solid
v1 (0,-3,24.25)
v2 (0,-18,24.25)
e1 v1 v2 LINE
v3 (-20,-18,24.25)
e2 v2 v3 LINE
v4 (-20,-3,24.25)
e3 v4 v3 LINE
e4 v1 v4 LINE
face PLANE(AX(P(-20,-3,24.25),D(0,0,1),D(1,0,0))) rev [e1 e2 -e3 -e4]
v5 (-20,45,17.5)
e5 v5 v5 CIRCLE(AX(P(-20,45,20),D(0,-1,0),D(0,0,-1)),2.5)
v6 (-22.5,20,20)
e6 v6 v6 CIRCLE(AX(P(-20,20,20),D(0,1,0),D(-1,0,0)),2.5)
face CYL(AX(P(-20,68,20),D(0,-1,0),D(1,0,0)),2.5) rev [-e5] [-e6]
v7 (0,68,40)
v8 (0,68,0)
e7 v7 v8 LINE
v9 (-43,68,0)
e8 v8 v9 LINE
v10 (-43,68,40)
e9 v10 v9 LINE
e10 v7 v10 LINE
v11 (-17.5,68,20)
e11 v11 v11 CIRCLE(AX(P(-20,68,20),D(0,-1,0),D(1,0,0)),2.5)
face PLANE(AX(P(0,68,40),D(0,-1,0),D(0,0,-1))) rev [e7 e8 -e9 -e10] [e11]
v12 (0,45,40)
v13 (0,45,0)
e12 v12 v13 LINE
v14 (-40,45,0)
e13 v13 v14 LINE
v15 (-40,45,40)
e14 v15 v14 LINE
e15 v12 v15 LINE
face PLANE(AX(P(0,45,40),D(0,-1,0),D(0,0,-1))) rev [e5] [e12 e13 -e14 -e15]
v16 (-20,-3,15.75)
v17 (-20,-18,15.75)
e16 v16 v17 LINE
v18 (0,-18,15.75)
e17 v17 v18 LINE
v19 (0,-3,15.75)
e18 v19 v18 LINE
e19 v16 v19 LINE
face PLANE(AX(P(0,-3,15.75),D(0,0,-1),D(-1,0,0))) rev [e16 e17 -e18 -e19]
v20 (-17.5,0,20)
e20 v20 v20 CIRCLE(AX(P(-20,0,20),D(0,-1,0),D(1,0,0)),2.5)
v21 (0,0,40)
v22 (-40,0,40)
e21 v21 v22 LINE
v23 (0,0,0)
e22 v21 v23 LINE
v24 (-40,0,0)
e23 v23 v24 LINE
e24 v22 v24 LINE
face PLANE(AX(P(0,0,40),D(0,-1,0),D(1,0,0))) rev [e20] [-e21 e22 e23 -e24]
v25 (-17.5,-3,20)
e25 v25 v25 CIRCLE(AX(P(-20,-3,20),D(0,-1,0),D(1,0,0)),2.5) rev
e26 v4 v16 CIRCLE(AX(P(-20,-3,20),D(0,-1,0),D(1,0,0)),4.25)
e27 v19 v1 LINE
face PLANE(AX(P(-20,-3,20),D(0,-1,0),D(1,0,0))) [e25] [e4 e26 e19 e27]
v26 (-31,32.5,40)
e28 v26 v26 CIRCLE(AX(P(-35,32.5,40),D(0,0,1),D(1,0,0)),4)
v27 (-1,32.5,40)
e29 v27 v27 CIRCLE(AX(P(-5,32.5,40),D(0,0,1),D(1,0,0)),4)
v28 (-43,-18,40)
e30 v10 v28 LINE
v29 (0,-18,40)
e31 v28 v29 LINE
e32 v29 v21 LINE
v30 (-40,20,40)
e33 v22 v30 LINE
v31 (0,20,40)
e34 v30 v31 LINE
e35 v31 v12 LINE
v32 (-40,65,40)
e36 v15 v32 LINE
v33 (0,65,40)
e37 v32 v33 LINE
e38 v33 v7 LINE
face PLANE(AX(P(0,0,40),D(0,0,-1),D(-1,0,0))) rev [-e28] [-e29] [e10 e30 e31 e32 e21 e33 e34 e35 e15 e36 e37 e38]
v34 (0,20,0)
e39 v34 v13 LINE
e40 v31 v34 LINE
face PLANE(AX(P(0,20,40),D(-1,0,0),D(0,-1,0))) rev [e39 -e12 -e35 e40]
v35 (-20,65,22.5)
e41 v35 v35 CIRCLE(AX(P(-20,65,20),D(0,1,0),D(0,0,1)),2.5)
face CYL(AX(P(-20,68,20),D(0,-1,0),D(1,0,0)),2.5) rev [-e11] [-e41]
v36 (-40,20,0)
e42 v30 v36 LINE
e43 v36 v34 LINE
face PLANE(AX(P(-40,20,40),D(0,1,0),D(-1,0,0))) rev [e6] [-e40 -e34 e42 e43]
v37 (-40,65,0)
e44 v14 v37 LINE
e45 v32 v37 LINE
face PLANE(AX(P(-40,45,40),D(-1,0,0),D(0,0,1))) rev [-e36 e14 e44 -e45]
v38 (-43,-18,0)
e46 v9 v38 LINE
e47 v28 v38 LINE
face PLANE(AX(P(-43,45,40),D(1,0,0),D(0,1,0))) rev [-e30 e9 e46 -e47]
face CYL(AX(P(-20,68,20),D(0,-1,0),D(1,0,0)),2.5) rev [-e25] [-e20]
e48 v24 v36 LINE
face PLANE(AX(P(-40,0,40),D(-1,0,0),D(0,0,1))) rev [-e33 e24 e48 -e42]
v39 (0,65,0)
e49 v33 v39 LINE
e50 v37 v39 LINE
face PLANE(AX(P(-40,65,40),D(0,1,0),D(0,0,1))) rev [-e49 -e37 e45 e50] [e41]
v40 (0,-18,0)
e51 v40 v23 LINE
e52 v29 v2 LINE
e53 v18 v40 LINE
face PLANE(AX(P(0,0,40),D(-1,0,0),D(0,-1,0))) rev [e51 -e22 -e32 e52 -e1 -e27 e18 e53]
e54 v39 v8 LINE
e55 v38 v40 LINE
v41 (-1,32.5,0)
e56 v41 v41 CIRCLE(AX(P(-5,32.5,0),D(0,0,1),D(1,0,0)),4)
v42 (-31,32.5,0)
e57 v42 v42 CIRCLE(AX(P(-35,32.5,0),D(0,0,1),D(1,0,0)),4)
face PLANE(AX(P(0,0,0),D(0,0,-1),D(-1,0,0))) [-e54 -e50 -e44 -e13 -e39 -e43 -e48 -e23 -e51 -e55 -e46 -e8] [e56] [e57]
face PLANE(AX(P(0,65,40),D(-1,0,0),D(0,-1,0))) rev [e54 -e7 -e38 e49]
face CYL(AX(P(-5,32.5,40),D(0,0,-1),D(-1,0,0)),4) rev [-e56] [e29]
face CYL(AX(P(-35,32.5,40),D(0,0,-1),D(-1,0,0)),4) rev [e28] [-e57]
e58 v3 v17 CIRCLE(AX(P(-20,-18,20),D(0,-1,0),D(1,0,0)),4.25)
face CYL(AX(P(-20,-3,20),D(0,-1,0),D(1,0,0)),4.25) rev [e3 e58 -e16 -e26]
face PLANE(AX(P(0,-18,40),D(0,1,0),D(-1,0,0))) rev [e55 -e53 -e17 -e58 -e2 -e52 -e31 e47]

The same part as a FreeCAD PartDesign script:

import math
import FreeCAD as App
import Part
import Sketcher
from FreeCAD import Vector

doc = App.newDocument("Part")
body = doc.addObject("PartDesign::Body", "Body")

# Sketch on XY plane
sketch1 = body.newObject("Sketcher::SketchObject", "Sketch")
sketch1.AttachmentSupport = (doc.getObject("XY_Plane"), [""])
sketch1.MapMode = "FlatFace"
sketch1.addGeometry([
    Part.LineSegment(Vector(0, 0, 0), Vector(-40, 0, 0)),  # 0
    Part.LineSegment(Vector(-40, 0, 0), Vector(-40, 20, 0)),  # 1
    Part.LineSegment(Vector(-40, 20, 0), Vector(0, 20, 0)),  # 2
    Part.LineSegment(Vector(0, 20, 0), Vector(0, 45, 0)),  # 3
    Part.LineSegment(Vector(0, 45, 0), Vector(-40, 45, 0)),  # 4
    Part.LineSegment(Vector(-40, 45, 0), Vector(-40, 65, 0)),  # 5
    Part.LineSegment(Vector(-40, 65, 0), Vector(0, 65, 0)),  # 6
    Part.LineSegment(Vector(0, 65, 0), Vector(0, 68, 0)),  # 7
    Part.LineSegment(Vector(0, 68, 0), Vector(-43, 68, 0)),  # 8
    Part.LineSegment(Vector(-43, 68, 0), Vector(-43, -18, 0)),  # 9
    Part.LineSegment(Vector(-43, -18, 0), Vector(0, -18, 0)),  # 10
    Part.LineSegment(Vector(0, -18, 0), Vector(0, 0, 0)),  # 11
    Part.Circle(Vector(-35, 32.5, 0), Vector(0, 0, 1), 4),  # 12
    Part.Circle(Vector(-5, 32.5, 0), Vector(0, 0, 1), 4),  # 13
], False)
sketch1.addConstraint([
    Sketcher.Constraint("Coincident", 0, 2, 1, 1),
    Sketcher.Constraint("Coincident", 1, 2, 2, 1),
    Sketcher.Constraint("Coincident", 2, 2, 3, 1),
    Sketcher.Constraint("Coincident", 3, 2, 4, 1),
    Sketcher.Constraint("Coincident", 4, 2, 5, 1),
    Sketcher.Constraint("Coincident", 5, 2, 6, 1),
    Sketcher.Constraint("Coincident", 6, 2, 7, 1),
    Sketcher.Constraint("Coincident", 7, 2, 8, 1),
    Sketcher.Constraint("Coincident", 8, 2, 9, 1),
    Sketcher.Constraint("Coincident", 9, 2, 10, 1),
    Sketcher.Constraint("Coincident", 10, 2, 11, 1),
    Sketcher.Constraint("Coincident", 11, 2, 0, 1),
    Sketcher.Constraint("Horizontal", 0),
    Sketcher.Constraint("Vertical", 1),
    Sketcher.Constraint("Horizontal", 2),
    Sketcher.Constraint("Vertical", 3),
    Sketcher.Constraint("Horizontal", 4),
    Sketcher.Constraint("Vertical", 5),
    Sketcher.Constraint("Horizontal", 6),
    Sketcher.Constraint("Vertical", 7),
    Sketcher.Constraint("Horizontal", 8),
    Sketcher.Constraint("Vertical", 9),
    Sketcher.Constraint("Horizontal", 10),
    Sketcher.Constraint("Vertical", 11),
    Sketcher.Constraint("Coincident", 11, 2, -1, 1),
    Sketcher.Constraint("Equal", 12, 13),
    Sketcher.Constraint("PointOnObject", 2, 2, -2),
    Sketcher.Constraint("PointOnObject", 6, 2, -2),
    Sketcher.Constraint("Horizontal", 12, 3, 13, 3),
    Sketcher.Constraint("Vertical", 1, 2, 4, 2),
    Sketcher.Constraint("Equal", 1, 5),
    Sketcher.Constraint("Diameter", 12, 8.0),
    Sketcher.Constraint("DistanceX", 0, 2, 0, 1, 40.0),
    Sketcher.Constraint("DistanceX", 8, 2, 8, 1, 43.0),
    Sketcher.Constraint("DistanceY", 1, 1, 1, 2, 20.0),
    Sketcher.Constraint("DistanceY", 3, 1, 3, 2, 25.0),
    Sketcher.Constraint("DistanceY", 7, 1, 7, 2, 3.0),
    Sketcher.Constraint("DistanceY", 9, 2, 9, 1, 86.0),
    Sketcher.Constraint("DistanceX", 12, 3, -1, 1, 35.0),
    Sketcher.Constraint("DistanceX", 13, 3, -1, 1, 5.0),
    Sketcher.Constraint("DistanceY", -1, 1, 12, 3, 32.5),
])
pad1 = body.newObject("PartDesign::Pad", "Pad")
pad1.Profile = sketch1
pad1.Length = 40

# Sketch on XZ plane
sketch2 = body.newObject("Sketcher::SketchObject", "Sketch001")
sketch2.AttachmentSupport = (doc.getObject("XZ_Plane"), [""])
sketch2.MapMode = "FlatFace"
sketch2.AttachmentOffset = App.Placement(Vector(0, 0, -20), App.Rotation())
sketch2.addGeometry(Part.Circle(Vector(-20, 20, 0), Vector(0, 0, 1), 2.5), False)
sketch2.addConstraint([
    Sketcher.Constraint("Diameter", 0, 5.0),
    Sketcher.Constraint("DistanceX", 0, 3, -1, 1, 20.0),
    Sketcher.Constraint("DistanceY", -1, 1, 0, 3, 20.0),
])
pocket1 = body.newObject("PartDesign::Pocket", "Pocket")
pocket1.Profile = sketch2
pocket1.Type = "ThroughAll"
pocket1.Midplane = True

# Sketch on XZ plane
sketch3 = body.newObject("Sketcher::SketchObject", "Sketch002")
sketch3.AttachmentSupport = (doc.getObject("XZ_Plane"), [""])
sketch3.MapMode = "FlatFace"
sketch3.AttachmentOffset = App.Placement(Vector(0, 0, 18), App.Rotation())
sketch3.addGeometry([
    Part.LineSegment(Vector(0, 24.2, 0), Vector(-20, 24.2, 0)),
    Part.ArcOfCircle(Part.Circle(Vector(-20, 20, 0), Vector(0, 0, 1), 4.2), math.radians(90), math.radians(270)),
    Part.LineSegment(Vector(-20, 15.8, 0), Vector(0, 15.8, 0)),
    Part.LineSegment(Vector(0, 15.8, 0), Vector(0, 24.2, 0)),
], False)
sketch3.addConstraint([
    Sketcher.Constraint("Tangent", 0, 2, 1, 1),
    Sketcher.Constraint("Tangent", 1, 2, 2, 1),
    Sketcher.Constraint("Coincident", 2, 2, 3, 1),
    Sketcher.Constraint("Coincident", 3, 2, 0, 1),
    Sketcher.Constraint("Horizontal", 0),
    Sketcher.Constraint("Horizontal", 2),
    Sketcher.Constraint("Vertical", 3),
    Sketcher.Constraint("PointOnObject", 2, 2, -2),
    Sketcher.Constraint("DistanceX", 0, 2, 0, 1, 20.0),
    Sketcher.Constraint("Radius", 1, 4.25),
    Sketcher.Constraint("DistanceY", -1, 1, 1, 3, 20.0),
])
pocket2 = body.newObject("PartDesign::Pocket", "Pocket001")
pocket2.Profile = sketch3
pocket2.Length = 15

doc.recompute()
